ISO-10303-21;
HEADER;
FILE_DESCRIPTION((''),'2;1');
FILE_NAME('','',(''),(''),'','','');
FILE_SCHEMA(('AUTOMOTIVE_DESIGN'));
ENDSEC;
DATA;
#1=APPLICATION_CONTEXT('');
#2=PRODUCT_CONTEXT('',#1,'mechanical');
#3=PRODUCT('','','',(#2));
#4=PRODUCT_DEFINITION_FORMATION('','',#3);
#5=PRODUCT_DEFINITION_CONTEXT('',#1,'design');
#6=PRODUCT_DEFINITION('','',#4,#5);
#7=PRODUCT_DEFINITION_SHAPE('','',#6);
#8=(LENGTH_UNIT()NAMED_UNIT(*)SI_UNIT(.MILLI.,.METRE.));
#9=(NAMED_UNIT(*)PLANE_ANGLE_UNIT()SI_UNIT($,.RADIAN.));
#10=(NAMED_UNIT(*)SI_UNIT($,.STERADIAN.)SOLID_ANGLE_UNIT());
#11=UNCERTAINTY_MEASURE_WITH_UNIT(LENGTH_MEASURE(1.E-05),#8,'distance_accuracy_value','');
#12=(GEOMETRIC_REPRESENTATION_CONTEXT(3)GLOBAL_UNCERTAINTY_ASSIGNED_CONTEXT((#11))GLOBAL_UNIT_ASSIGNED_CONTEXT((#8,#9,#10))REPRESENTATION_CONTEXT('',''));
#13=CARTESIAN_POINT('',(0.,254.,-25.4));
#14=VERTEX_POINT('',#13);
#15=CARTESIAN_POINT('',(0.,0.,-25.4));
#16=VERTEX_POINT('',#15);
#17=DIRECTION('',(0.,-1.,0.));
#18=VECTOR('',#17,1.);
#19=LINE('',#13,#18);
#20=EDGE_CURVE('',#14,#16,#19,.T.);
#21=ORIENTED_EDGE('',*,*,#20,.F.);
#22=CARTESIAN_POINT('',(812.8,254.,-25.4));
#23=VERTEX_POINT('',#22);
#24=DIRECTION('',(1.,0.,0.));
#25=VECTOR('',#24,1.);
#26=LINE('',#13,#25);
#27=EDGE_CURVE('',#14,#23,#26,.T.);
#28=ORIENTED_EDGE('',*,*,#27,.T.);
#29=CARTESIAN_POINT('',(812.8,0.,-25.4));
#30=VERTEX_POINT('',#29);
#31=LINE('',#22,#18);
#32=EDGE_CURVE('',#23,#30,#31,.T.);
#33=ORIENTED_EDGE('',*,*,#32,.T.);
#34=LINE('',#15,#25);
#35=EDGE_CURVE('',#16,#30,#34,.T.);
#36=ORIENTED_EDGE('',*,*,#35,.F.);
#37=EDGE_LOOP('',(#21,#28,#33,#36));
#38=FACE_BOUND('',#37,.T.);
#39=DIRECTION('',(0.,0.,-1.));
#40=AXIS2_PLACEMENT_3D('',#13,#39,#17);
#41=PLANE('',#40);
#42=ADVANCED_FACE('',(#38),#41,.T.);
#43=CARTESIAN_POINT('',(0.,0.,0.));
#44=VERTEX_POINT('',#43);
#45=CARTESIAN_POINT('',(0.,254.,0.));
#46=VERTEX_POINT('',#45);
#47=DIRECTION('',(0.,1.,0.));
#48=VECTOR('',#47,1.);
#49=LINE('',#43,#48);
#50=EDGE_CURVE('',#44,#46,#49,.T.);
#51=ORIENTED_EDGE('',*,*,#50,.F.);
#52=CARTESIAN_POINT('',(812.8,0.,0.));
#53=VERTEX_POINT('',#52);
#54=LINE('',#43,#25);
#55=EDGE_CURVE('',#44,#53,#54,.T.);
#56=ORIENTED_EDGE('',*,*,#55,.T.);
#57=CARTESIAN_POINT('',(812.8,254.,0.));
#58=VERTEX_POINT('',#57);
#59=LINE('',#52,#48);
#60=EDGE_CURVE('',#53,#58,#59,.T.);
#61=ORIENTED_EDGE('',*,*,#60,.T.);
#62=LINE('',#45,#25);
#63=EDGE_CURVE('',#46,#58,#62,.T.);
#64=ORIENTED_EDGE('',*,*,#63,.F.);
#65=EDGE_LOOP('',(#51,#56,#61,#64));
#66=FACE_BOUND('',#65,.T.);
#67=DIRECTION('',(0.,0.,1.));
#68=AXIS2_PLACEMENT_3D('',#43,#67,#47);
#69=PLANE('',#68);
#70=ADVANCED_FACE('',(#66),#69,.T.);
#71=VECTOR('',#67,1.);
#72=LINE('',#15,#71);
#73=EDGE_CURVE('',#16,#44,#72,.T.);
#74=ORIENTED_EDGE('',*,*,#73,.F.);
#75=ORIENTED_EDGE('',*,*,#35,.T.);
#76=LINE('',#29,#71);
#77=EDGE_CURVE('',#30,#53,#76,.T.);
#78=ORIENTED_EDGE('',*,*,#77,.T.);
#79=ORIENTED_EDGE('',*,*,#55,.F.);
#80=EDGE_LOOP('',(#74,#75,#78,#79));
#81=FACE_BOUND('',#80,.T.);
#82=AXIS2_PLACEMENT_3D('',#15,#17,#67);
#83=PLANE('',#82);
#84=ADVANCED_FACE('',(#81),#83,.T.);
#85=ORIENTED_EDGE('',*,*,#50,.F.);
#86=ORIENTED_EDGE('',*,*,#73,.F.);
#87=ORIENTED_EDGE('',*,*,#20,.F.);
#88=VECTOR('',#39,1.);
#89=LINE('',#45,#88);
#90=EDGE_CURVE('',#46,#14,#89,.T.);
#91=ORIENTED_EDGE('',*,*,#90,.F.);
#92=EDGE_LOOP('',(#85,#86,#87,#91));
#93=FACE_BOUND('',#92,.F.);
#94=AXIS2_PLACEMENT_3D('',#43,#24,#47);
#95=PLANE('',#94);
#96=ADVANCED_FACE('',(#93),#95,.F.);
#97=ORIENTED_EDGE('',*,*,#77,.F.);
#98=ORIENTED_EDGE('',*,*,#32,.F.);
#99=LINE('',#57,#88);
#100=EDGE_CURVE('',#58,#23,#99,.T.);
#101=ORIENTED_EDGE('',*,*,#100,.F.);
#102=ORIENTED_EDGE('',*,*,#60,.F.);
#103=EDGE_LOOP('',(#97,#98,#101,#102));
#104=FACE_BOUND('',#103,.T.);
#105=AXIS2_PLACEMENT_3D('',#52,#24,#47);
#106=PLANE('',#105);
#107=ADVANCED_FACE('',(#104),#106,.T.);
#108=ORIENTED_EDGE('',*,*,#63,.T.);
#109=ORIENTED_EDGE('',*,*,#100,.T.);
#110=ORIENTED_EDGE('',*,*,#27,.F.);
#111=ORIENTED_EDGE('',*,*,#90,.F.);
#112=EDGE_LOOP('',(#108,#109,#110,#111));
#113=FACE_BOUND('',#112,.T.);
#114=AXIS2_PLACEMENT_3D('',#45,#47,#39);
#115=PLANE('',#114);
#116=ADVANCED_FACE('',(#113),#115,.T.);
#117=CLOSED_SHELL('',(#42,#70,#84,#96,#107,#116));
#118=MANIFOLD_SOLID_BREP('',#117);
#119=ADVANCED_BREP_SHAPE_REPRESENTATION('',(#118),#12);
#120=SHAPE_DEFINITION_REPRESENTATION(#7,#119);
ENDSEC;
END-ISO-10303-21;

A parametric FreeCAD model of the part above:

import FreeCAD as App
import Part
import Sketcher
Q = App.Units.Quantity

doc = App.newDocument("Part")
body = doc.addObject("PartDesign::Body", "Body")

sketch1 = body.newObject("Sketcher::SketchObject", "Sketch")
sketch1.AttachmentSupport = (doc.getObject("YZ_Plane"), [""])
sketch1.MapMode = "FlatFace"
sketch1.addGeometry([
    Part.LineSegment(App.Vector(254, 0, 0), App.Vector(0, 0, 0)),
    Part.LineSegment(App.Vector(0, 0, 0), App.Vector(0, -25.4, 0)),
    Part.LineSegment(App.Vector(0, -25.4, 0), App.Vector(254, -25.4, 0)),
    Part.LineSegment(App.Vector(254, -25.4, 0), App.Vector(254, 0, 0)),
], False)
sketch1.addConstraint([
    Sketcher.Constraint("Coincident", 0, 2, 1, 1),
    Sketcher.Constraint("Coincident", 1, 2, 2, 1),
    Sketcher.Constraint("Coincident", 2, 2, 3, 1),
    Sketcher.Constraint("Coincident", 3, 2, 0, 1),
    Sketcher.Constraint("Horizontal", 0),
    Sketcher.Constraint("Vertical", 1),
    Sketcher.Constraint("Horizontal", 2),
    Sketcher.Constraint("Vertical", 3),
    Sketcher.Constraint("Coincident", 0, 2, -1, 1),
    Sketcher.Constraint("DistanceX", 0, 2, 0, 1, Q("10 in")),
    Sketcher.Constraint("DistanceY", 1, 2, 1, 1, Q("1 in")),
])
pad1 = body.newObject("PartDesign::Pad", "Pad")
pad1.Profile = sketch1
pad1.Length = Q("32 in")

doc.recompute()
